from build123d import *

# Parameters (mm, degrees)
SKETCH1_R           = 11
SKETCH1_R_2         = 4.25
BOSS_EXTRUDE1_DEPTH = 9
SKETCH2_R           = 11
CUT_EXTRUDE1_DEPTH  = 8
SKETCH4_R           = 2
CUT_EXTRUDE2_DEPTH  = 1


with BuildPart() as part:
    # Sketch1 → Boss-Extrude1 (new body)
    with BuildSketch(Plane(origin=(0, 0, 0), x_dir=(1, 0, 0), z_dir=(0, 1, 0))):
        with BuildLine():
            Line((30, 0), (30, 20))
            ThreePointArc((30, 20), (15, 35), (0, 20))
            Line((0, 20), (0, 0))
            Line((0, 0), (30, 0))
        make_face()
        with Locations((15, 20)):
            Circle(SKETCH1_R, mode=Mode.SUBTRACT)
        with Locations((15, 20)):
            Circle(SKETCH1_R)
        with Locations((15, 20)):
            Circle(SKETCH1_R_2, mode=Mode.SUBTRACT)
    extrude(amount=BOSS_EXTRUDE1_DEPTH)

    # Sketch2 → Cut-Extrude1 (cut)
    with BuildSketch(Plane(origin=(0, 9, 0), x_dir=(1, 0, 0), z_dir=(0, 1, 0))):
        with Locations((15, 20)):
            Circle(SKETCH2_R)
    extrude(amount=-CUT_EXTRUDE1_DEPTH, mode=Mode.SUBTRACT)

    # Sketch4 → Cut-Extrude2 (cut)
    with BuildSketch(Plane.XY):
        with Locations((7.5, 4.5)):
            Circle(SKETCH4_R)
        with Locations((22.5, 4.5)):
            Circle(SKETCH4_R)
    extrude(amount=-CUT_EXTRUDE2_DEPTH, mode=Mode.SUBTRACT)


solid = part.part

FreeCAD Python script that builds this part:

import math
import FreeCAD as App
import Part
import Sketcher

V = App.Vector

doc = App.newDocument("Part")
params = doc.addObject("Spreadsheet::Sheet", "Params")
for row, (alias, value) in enumerate([
    ("sketch1_radius", "15 mm"),
    ("sketch1_diameter", "8.5 mm"),
    ("sketch1_height", "20 mm"),
    ("pad1_length", "9 mm"),
    ("sketch2_diameter", "22 mm"),
    ("pocket1_length", "8 mm"),
    ("sketch3_diameter", "4 mm"),
    ("pocket2_length", "1 mm"),
], start=1):
    params.set(f"A{row}", alias)
    params.set(f"B{row}", "=" + value)
    params.setAlias(f"B{row}", alias)

body = doc.addObject("PartDesign::Body", "Body")

sketch1 = body.newObject("Sketcher::SketchObject", "Sketch")
sketch1.AttachmentSupport = (doc.getObject("XZ_Plane"), [""])
sketch1.MapMode = "FlatFace"
sketch1.addGeometry([
    Part.LineSegment(V(30, 0, 0), V(30, -20, 0)),
    Part.ArcOfCircle(Part.Circle(V(15, -20, 0), V(0, 0, 1), 15), math.radians(180), math.radians(360)),
    Part.LineSegment(V(0, -20, 0), V(0, 0, 0)),
    Part.LineSegment(V(0, 0, 0), V(30, 0, 0)),
    Part.Circle(V(15, -20, 0), V(0, 0, 1), 4.2),
], False)
sketch1.addConstraint([
    Sketcher.Constraint("Tangent", 0, 2, 1, 2),
    Sketcher.Constraint("Tangent", 1, 1, 2, 1),
    Sketcher.Constraint("Coincident", 2, 2, 3, 1),
    Sketcher.Constraint("Coincident", 3, 2, 0, 1),
    Sketcher.Constraint("Vertical", 0),
    Sketcher.Constraint("Vertical", 2),
    Sketcher.Constraint("Horizontal", 3),
    Sketcher.Constraint("Coincident", 2, 2, -1, 1),
    Sketcher.Constraint("Coincident", 4, 3, 1, 3),
    Sketcher.Constraint("Radius", 1, 15.0),
    Sketcher.Constraint("Diameter", 4, 8.5),
    Sketcher.Constraint("DistanceY", 0, 2, 0, 1, 20.0),
])
sketch1.setExpression("Constraints[9]", "Params.sketch1_radius")
sketch1.setExpression("Constraints[10]", "Params.sketch1_diameter")
sketch1.setExpression("Constraints[11]", "Params.sketch1_height")
pad1 = body.newObject("PartDesign::Pad", "Pad")
pad1.Profile = sketch1
pad1.setExpression("Length", "Params.pad1_length")
pad1.Reversed = True

sketch2 = body.newObject("Sketcher::SketchObject", "Sketch001")
sketch2.AttachmentSupport = (doc.getObject("XZ_Plane"), [""])
sketch2.MapMode = "FlatFace"
sketch2.AttachmentOffset = App.Placement(V(0, 0, -9), App.Rotation())
sketch2.addGeometry(Part.Circle(V(15, -20, 0), V(0, 0, 1), 11), False)
sketch2.addConstraint([
    Sketcher.Constraint("Diameter", 0, 22.0),
    Sketcher.Constraint("DistanceX", -1, 1, 0, 3, 15.0),
    Sketcher.Constraint("DistanceY", 0, 3, -1, 1, 20.0),
])
sketch2.setExpression("Constraints[0]", "Params.sketch2_diameter")
pocket1 = body.newObject("PartDesign::Pocket", "Pocket")
pocket1.Profile = sketch2
pocket1.setExpression("Length", "Params.pocket1_length")
pocket1.Reversed = True

sketch3 = body.newObject("Sketcher::SketchObject", "Sketch002")
sketch3.AttachmentSupport = (doc.getObject("XY_Plane"), [""])
sketch3.MapMode = "FlatFace"
sketch3.addGeometry([
    Part.Circle(V(7.5, 4.5, 0), V(0, 0, 1), 2),
    Part.Circle(V(22.5, 4.5, 0), V(0, 0, 1), 2),
], False)
sketch3.addConstraint([
    Sketcher.Constraint("Equal", 0, 1),
    Sketcher.Constraint("Horizontal", 0, 3, 1, 3),
    Sketcher.Constraint("Diameter", 0, 4.0),
    Sketcher.Constraint("DistanceX", 0, 3, 1, 3, 15.0),
    Sketcher.Constraint("DistanceX", -1, 1, 0, 3, 7.5),
    Sketcher.Constraint("DistanceY", -1, 1, 0, 3, 4.5),
])
sketch3.setExpression("Constraints[2]", "Params.sketch3_diameter")
pocket2 = body.newObject("PartDesign::Pocket", "Pocket001")
pocket2.Profile = sketch3
pocket2.setExpression("Length", "Params.pocket2_length")

doc.recompute()
